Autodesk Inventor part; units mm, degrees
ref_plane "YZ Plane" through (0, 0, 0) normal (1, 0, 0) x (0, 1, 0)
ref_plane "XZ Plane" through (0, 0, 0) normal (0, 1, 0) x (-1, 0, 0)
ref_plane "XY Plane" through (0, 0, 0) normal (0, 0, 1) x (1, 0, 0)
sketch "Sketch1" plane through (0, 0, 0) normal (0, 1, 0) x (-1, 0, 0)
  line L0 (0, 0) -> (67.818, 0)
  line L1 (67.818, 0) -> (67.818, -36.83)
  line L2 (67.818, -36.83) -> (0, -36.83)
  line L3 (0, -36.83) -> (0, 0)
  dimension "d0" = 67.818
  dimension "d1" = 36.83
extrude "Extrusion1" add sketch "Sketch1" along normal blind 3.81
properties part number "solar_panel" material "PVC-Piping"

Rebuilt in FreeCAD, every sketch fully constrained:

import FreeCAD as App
import Part
import Sketcher

V = App.Vector
Q = App.Units.Quantity

doc = App.newDocument("Part")
body = doc.addObject("PartDesign::Body", "Body")

# Sketch on XZ plane
sketch1 = body.newObject("Sketcher::SketchObject", "Sketch")
sketch1.AttachmentSupport = (doc.getObject("XZ_Plane"), [""])
sketch1.MapMode = "FlatFace"
sketch1.addGeometry(Part.LineSegment(V(-67.818, 0, 0), V(0, 0, 0)), False)
sketch1.addGeometry(Part.LineSegment(V(0, 0, 0), V(0, -36.83, 0)), False)
sketch1.addGeometry(Part.LineSegment(V(0, -36.83, 0), V(-67.818, -36.83, 0)), False)
sketch1.addGeometry(Part.LineSegment(V(-67.818, -36.83, 0), V(-67.818, 0, 0)), False)
sketch1.addConstraint(Sketcher.Constraint("Coincident", 0, 2, 1, 1))
sketch1.addConstraint(Sketcher.Constraint("Coincident", 1, 2, 2, 1))
sketch1.addConstraint(Sketcher.Constraint("Coincident", 2, 2, 3, 1))
sketch1.addConstraint(Sketcher.Constraint("Coincident", 3, 2, 0, 1))
sketch1.addConstraint(Sketcher.Constraint("Horizontal", 0))
sketch1.addConstraint(Sketcher.Constraint("Vertical", 1))
sketch1.addConstraint(Sketcher.Constraint("Horizontal", 2))
sketch1.addConstraint(Sketcher.Constraint("Vertical", 3))
sketch1.addConstraint(Sketcher.Constraint("Coincident", 0, 2, -1, 1))
sketch1.addConstraint(Sketcher.Constraint("DistanceX", 0, 1, 0, 2, Q("2.67 in")))
sketch1.addConstraint(Sketcher.Constraint("DistanceY", 1, 2, 1, 1, Q("1.45 in")))
pad1 = body.newObject("PartDesign::Pad", "Pad")
pad1.Profile = sketch1
pad1.Length = Q("0.15 in")
pad1.Reversed = True

doc.recompute()
